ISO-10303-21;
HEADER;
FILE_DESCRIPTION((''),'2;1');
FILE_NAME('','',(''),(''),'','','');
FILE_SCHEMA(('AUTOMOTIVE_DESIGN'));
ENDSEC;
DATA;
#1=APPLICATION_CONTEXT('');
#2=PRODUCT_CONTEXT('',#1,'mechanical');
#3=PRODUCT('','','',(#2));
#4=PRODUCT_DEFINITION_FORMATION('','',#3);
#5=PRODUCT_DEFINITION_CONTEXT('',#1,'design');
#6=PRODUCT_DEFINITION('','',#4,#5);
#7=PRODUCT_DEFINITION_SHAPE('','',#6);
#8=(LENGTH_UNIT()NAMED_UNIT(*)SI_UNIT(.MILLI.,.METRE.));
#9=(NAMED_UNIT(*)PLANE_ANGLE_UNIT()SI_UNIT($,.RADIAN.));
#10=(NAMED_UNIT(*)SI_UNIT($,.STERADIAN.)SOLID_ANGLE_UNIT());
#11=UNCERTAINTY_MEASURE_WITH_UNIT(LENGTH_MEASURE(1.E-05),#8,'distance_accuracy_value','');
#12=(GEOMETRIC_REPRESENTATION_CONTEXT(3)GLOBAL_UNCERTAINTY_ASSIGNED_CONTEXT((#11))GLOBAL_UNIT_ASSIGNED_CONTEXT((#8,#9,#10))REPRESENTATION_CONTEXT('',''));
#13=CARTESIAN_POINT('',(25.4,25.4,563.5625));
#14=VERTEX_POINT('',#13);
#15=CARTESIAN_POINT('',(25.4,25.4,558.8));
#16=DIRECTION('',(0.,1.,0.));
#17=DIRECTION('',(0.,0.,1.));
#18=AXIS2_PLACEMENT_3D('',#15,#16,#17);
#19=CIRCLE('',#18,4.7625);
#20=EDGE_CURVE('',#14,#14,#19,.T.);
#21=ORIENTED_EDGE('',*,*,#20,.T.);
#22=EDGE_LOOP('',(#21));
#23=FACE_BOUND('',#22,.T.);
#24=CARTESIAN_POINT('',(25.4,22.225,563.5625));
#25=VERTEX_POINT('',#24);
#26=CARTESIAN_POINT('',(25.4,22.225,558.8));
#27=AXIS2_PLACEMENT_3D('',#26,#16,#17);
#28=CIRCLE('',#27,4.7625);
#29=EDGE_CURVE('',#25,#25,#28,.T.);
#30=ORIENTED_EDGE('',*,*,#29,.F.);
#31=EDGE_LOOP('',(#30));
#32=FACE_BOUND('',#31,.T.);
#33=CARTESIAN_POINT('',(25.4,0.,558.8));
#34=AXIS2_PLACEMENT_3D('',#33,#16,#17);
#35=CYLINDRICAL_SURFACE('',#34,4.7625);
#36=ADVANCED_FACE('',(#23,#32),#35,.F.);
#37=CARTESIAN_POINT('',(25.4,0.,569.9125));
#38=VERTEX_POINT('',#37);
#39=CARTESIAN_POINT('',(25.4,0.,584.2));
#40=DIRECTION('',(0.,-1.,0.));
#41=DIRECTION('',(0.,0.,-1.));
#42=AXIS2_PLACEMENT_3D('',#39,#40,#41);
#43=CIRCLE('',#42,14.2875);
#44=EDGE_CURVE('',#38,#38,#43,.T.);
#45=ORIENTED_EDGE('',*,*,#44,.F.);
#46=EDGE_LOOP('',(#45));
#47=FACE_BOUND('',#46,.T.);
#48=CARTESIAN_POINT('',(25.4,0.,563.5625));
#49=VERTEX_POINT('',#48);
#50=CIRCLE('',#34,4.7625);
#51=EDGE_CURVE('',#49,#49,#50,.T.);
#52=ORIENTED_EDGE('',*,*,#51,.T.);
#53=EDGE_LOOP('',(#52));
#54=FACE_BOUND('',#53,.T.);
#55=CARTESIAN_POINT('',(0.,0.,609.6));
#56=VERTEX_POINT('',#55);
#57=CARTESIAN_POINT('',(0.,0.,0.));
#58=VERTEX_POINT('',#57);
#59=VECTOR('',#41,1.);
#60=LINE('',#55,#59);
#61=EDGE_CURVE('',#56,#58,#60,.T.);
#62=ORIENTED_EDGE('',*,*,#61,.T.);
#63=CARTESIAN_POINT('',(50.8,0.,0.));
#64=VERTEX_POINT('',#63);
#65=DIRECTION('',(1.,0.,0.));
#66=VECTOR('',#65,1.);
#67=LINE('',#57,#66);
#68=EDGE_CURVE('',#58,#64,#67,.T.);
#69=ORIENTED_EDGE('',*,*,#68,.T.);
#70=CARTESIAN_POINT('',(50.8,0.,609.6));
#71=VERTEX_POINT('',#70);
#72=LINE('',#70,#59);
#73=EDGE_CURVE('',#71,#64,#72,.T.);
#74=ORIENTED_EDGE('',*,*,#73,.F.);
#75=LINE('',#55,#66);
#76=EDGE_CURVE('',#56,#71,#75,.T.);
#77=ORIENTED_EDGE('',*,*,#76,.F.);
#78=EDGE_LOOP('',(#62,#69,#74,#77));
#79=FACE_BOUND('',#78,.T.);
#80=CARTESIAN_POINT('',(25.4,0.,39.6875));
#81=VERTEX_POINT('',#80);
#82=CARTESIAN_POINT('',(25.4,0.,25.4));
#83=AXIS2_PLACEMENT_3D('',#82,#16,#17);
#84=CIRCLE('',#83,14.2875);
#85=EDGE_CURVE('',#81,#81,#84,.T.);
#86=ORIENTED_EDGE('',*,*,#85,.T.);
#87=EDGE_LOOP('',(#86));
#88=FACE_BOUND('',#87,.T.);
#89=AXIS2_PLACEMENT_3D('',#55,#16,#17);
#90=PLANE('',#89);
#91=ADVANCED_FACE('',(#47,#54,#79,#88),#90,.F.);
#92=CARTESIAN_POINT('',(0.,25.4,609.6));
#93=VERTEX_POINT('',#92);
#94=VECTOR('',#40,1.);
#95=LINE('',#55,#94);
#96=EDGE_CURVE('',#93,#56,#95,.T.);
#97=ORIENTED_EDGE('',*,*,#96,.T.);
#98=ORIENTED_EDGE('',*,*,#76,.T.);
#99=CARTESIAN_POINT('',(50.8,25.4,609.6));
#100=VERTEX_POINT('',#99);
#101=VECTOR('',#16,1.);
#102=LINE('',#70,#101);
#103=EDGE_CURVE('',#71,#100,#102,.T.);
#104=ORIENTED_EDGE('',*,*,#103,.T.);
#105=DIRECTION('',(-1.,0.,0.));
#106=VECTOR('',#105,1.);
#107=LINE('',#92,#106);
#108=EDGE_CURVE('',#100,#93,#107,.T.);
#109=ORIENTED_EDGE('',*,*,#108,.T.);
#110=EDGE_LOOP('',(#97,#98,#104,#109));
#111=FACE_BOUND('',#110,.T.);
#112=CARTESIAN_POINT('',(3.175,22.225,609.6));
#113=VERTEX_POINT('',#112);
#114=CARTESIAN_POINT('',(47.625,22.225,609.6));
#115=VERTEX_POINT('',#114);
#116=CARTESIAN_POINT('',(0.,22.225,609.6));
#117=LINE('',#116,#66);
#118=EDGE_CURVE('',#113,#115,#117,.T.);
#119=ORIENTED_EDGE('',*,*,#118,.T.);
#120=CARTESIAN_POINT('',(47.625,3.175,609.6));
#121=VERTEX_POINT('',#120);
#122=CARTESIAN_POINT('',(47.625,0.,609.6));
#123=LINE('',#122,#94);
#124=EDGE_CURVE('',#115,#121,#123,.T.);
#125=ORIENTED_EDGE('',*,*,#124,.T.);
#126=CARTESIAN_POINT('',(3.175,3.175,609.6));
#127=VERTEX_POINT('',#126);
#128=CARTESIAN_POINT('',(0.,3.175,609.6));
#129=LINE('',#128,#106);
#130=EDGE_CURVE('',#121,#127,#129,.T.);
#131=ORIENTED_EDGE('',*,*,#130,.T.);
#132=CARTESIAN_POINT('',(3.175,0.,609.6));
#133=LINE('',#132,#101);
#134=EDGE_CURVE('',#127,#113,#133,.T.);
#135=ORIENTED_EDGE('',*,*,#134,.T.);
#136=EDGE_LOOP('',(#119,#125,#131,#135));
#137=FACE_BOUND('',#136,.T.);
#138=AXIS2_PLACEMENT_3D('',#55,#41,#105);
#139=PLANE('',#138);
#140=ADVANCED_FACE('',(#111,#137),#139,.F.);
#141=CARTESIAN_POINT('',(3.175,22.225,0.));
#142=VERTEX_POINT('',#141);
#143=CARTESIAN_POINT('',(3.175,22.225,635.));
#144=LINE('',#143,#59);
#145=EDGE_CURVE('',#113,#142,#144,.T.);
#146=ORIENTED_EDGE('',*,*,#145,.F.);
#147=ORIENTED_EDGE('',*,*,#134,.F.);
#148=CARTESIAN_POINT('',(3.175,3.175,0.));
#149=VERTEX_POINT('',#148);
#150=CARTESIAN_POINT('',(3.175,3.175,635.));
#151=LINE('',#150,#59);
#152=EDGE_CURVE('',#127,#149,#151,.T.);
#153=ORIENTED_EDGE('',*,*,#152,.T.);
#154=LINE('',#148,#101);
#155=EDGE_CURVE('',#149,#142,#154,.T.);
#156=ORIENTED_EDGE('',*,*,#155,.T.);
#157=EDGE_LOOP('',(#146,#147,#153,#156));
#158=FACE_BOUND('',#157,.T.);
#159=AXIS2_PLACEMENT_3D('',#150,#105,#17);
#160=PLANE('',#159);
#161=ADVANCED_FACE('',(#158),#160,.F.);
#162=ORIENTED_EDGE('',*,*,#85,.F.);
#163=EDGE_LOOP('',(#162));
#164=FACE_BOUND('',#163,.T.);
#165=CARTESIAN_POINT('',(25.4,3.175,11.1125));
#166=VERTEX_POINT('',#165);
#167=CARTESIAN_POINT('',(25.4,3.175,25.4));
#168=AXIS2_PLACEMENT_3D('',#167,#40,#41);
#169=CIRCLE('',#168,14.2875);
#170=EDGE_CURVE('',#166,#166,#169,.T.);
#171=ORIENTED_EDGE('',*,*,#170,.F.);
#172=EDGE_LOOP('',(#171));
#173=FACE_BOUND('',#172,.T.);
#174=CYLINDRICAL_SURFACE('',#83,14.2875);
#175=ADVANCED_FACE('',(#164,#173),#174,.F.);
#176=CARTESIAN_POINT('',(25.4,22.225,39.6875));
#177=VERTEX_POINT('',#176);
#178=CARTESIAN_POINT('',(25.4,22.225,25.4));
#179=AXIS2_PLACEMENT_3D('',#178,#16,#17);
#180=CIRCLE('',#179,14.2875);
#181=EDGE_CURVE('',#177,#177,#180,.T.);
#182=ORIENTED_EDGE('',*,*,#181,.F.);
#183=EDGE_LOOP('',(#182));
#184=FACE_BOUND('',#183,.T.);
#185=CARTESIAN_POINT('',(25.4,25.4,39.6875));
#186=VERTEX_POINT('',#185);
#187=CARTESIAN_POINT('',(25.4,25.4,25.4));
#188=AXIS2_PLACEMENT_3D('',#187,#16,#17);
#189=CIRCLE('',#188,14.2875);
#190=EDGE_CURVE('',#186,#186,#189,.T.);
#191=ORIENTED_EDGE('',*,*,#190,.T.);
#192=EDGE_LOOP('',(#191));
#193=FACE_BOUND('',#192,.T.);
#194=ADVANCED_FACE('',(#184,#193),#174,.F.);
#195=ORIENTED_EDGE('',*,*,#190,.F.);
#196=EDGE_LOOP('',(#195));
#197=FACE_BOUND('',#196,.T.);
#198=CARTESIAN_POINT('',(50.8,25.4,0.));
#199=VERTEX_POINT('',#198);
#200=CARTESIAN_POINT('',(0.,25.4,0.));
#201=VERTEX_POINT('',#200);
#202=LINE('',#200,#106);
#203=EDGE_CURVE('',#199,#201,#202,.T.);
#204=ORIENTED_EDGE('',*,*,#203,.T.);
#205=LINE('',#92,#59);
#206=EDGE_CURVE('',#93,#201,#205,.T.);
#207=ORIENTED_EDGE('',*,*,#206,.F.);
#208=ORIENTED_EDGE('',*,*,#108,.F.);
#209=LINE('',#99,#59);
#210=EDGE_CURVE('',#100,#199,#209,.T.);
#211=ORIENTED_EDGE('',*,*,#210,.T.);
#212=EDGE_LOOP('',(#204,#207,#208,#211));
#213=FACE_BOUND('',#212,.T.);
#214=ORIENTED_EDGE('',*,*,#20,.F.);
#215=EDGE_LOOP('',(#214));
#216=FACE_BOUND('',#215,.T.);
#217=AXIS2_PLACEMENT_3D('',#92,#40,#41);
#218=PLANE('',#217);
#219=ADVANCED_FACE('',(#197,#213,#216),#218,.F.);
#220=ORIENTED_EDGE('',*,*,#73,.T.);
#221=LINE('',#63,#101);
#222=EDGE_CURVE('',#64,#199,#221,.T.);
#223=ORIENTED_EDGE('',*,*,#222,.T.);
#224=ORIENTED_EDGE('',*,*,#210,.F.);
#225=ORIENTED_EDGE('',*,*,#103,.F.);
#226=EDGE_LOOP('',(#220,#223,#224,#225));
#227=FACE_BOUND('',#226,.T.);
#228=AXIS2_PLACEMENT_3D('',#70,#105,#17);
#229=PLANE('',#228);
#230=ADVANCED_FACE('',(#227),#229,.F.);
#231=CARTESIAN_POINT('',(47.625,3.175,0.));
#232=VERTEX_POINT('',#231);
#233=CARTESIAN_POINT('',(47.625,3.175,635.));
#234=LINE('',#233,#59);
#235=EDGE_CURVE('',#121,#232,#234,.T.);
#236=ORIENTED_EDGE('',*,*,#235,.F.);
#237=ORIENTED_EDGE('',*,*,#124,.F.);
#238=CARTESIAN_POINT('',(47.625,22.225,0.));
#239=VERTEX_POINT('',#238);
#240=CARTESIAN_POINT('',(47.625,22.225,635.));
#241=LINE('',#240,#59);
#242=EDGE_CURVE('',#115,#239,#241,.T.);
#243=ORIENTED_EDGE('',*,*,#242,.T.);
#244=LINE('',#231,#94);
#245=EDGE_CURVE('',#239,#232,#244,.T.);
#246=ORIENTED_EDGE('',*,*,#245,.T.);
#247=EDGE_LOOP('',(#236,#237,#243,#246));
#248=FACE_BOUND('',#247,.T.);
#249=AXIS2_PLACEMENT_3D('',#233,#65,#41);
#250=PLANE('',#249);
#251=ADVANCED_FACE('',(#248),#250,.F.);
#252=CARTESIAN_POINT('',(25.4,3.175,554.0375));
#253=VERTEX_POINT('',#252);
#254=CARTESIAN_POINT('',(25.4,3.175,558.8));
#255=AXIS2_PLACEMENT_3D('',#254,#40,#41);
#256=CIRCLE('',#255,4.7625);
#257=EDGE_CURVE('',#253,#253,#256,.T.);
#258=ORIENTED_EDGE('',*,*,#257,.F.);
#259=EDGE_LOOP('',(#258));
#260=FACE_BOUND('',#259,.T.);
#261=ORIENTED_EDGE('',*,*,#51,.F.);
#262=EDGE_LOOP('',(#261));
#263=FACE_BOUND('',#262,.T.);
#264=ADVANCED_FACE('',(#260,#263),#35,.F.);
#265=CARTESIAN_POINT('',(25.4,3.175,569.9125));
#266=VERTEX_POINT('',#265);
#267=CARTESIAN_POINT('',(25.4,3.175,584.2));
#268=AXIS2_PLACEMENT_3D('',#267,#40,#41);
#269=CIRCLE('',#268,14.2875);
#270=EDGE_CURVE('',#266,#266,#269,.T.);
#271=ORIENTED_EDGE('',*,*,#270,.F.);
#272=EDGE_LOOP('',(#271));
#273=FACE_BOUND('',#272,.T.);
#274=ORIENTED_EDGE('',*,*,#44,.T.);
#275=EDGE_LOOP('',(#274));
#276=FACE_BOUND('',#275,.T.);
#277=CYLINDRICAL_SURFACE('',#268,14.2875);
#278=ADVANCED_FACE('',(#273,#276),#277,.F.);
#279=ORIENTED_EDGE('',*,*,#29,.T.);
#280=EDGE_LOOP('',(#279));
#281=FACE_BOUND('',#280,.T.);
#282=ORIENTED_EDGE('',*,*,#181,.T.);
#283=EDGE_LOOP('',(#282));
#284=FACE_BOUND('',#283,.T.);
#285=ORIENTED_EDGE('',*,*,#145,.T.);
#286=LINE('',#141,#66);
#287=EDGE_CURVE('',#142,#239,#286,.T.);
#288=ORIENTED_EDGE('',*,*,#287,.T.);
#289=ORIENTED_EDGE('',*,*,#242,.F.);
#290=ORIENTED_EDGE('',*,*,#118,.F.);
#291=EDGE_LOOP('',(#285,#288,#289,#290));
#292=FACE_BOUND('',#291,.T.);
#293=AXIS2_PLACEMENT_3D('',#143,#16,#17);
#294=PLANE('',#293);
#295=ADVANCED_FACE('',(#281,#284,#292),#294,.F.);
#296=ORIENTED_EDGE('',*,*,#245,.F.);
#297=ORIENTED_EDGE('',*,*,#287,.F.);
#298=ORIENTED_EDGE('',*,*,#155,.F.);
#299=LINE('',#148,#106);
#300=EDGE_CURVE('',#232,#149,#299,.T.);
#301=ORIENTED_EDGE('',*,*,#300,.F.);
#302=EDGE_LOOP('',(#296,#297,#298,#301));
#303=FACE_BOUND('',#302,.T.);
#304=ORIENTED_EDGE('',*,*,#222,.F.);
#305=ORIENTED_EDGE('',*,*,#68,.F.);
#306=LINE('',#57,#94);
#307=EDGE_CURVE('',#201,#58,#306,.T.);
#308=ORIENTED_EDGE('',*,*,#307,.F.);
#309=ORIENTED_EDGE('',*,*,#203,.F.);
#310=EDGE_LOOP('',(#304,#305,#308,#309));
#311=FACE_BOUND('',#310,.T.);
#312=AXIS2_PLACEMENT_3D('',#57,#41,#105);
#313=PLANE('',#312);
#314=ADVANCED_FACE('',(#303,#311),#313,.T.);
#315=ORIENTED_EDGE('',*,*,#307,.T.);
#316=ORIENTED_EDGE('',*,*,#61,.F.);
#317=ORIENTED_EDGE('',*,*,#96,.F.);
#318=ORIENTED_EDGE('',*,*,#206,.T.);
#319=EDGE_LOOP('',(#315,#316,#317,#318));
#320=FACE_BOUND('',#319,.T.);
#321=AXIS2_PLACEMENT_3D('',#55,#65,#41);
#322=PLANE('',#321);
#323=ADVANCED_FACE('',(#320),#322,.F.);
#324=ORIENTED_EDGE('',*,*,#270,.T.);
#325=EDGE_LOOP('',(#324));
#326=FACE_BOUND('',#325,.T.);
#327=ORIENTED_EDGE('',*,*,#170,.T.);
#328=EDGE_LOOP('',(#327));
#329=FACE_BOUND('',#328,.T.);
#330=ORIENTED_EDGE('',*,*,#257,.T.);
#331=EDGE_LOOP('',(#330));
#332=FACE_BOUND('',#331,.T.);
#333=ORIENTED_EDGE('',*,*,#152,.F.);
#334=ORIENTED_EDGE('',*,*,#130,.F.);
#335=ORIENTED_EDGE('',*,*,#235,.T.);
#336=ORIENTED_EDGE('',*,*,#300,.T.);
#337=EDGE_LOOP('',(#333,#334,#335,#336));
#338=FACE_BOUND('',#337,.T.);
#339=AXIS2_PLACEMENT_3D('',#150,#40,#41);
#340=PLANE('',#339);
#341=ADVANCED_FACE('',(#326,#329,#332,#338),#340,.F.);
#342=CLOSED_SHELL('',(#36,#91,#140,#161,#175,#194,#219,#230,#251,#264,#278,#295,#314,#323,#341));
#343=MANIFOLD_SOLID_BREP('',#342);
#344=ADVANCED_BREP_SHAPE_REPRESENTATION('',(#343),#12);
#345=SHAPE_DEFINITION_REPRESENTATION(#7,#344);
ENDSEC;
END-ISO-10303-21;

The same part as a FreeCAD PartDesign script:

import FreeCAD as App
import Part
import Sketcher
Q = App.Units.Quantity


def add_polygon(sketch, points):
    """Adds a closed chain of lines whose ends are joined by coincident constraints."""
    first, n = sketch.GeometryCount, len(points)
    for a, b in zip(points, points[1:] + points[:1]):
        sketch.addGeometry(Part.LineSegment(App.Vector(*a, 0), App.Vector(*b, 0)), False)
    for i in range(n):
        sketch.addConstraint(Sketcher.Constraint("Coincident", first + i, 2, first + (i + 1) % n, 1))

doc = App.newDocument("Part")
body = doc.addObject("PartDesign::Body", "Body")

# Sketch on XY plane
sketch1 = body.newObject("Sketcher::SketchObject", "Sketch")
sketch1.AttachmentSupport = (doc.getObject("XY_Plane"), [""])
sketch1.MapMode = "FlatFace"
add_polygon(sketch1, [(0, 25.4), (0, 0), (50.8, 0), (50.8, 25.4)])  # lines 0-3
sketch1.addConstraint([
    Sketcher.Constraint("Vertical", 0),
    Sketcher.Constraint("Horizontal", 1),
    Sketcher.Constraint("Vertical", 2),
    Sketcher.Constraint("Horizontal", 3),
    Sketcher.Constraint("Coincident", 0, 2, -1, 1),
    Sketcher.Constraint("DistanceX", 1, 1, 1, 2, Q("2 in")),
    Sketcher.Constraint("DistanceY", 0, 2, 0, 1, Q("1 in")),
])
pad1 = body.newObject("PartDesign::Pad", "Pad")
pad1.Profile = sketch1
pad1.Length = Q("24 in")

# Sketch on XY plane
sketch2 = body.newObject("Sketcher::SketchObject", "Sketch001")
sketch2.AttachmentSupport = (doc.getObject("XY_Plane"), [""])
sketch2.MapMode = "FlatFace"
add_polygon(sketch2, [(47.625, 22.225), (47.625, 3.175), (3.175, 3.175), (3.175, 22.225)])  # lines 0-3
sketch2.addConstraint([
    Sketcher.Constraint("Vertical", 0),
    Sketcher.Constraint("Horizontal", 1),
    Sketcher.Constraint("Vertical", 2),
    Sketcher.Constraint("Horizontal", 3),
    Sketcher.Constraint("DistanceX", 1, 2, 1, 1, Q("1.75 in")),
    Sketcher.Constraint("DistanceY", 0, 2, 0, 1, Q("0.75 in")),
    Sketcher.Constraint("DistanceX", -1, 1, 0, 2, Q("1.875 in")),
    Sketcher.Constraint("DistanceY", -1, 1, 0, 2, Q("0.125 in")),
])
pocket1 = body.newObject("PartDesign::Pocket", "Pocket")
pocket1.Profile = sketch2
pocket1.Length = Q("25 in")
pocket1.Reversed = True

# Sketch on XZ plane
sketch3 = body.newObject("Sketcher::SketchObject", "Sketch002")
sketch3.AttachmentSupport = (doc.getObject("XZ_Plane"), [""])
sketch3.MapMode = "FlatFace"
sketch3.AttachmentOffset = App.Placement(App.Vector(0, 0, -1 * 25.4), App.Rotation())
sketch3.addGeometry(Part.Circle(App.Vector(25.4, 25.4, 0), App.Vector(0, 0, 1), 14.2875), False)
sketch3.addConstraint([
    Sketcher.Constraint("Diameter", 0, Q("1.125 in")),
    Sketcher.Constraint("DistanceX", -1, 1, 0, 3, Q("1 in")),
    Sketcher.Constraint("DistanceY", -1, 1, 0, 3, Q("1 in")),
])
pocket2 = body.newObject("PartDesign::Pocket", "Pocket001")
pocket2.Profile = sketch3
pocket2.Length = Q("1 in")
pocket2.Reversed = True

# Sketch on XZ plane
sketch4 = body.newObject("Sketcher::SketchObject", "Sketch003")
sketch4.AttachmentSupport = (doc.getObject("XZ_Plane"), [""])
sketch4.MapMode = "FlatFace"
sketch4.addGeometry(Part.Circle(App.Vector(25.4, 584.2, 0), App.Vector(0, 0, 1), 14.2875), False)
sketch4.addConstraint([
    Sketcher.Constraint("Diameter", 0, Q("1.125 in")),
    Sketcher.Constraint("DistanceX", -1, 1, 0, 3, Q("1 in")),
    Sketcher.Constraint("DistanceY", -1, 1, 0, 3, Q("23 in")),
])
pocket3 = body.newObject("PartDesign::Pocket", "Pocket002")
pocket3.Profile = sketch4
pocket3.Length = Q("0.125 in")

# Sketch on XZ plane
sketch5 = body.newObject("Sketcher::SketchObject", "Sketch004")
sketch5.AttachmentSupport = (doc.getObject("XZ_Plane"), [""])
sketch5.MapMode = "FlatFace"
sketch5.AttachmentOffset = App.Placement(App.Vector(0, 0, -1 * 25.4), App.Rotation())
sketch5.addGeometry(Part.Circle(App.Vector(25.4, 558.8, 0), App.Vector(0, 0, 1), 4.7625), False)
sketch5.addConstraint([
    Sketcher.Constraint("Diameter", 0, Q("0.375 in")),
    Sketcher.Constraint("DistanceX", -1, 1, 0, 3, Q("1 in")),
    Sketcher.Constraint("DistanceY", -1, 1, 0, 3, Q("22 in")),
])
pocket4 = body.newObject("PartDesign::Pocket", "Pocket003")
pocket4.Profile = sketch5
pocket4.Length = Q("1 in")
pocket4.Reversed = True

doc.recompute()
